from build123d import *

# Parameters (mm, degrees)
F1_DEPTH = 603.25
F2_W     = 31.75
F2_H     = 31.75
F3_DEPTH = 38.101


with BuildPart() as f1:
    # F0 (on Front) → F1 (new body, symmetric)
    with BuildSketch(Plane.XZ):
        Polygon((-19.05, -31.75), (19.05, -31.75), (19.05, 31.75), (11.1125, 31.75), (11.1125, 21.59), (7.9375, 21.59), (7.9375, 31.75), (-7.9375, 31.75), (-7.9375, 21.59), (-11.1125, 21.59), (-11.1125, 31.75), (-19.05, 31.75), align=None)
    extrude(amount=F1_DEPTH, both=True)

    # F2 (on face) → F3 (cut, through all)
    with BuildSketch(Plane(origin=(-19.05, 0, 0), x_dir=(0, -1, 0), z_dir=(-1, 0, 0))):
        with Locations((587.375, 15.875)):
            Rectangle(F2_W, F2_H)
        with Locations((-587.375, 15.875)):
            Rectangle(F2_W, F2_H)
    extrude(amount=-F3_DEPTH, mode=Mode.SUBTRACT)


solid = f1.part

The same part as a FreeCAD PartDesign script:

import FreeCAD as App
import Part
import Sketcher

V = App.Vector
Q = App.Units.Quantity

doc = App.newDocument("Part")
params = doc.addObject("Spreadsheet::Sheet", "Params")
for row, (alias, value) in enumerate([
    ("sketch1_width", "1.5 in"),
    ("sketch1_height", "2.5 in"),
    ("sketch1_height2", "0.4 in"),
    ("sketch1_width2", "0.3125 in"),
    ("sketch1_width3", "0.125 in"),
    ("pad1_length", "47.5 in"),
    ("sketch2_width", "1.25 in"),
], start=1):
    params.set(f"A{row}", alias)
    params.set(f"B{row}", "=" + value)
    params.setAlias(f"B{row}", alias)

body = doc.addObject("PartDesign::Body", "Body")

sketch1 = body.newObject("Sketcher::SketchObject", "Sketch")
sketch1.AttachmentSupport = (doc.getObject("XZ_Plane"), [""])
sketch1.MapMode = "FlatFace"
sketch1.addGeometry([
    Part.LineSegment(V(-19.05, -31.75, 0), V(19.05, -31.75, 0)),
    Part.LineSegment(V(19.05, -31.75, 0), V(19.05, 31.75, 0)),
    Part.LineSegment(V(19.05, 31.75, 0), V(11.1125, 31.75, 0)),
    Part.LineSegment(V(11.1125, 31.75, 0), V(11.1125, 21.59, 0)),
    Part.LineSegment(V(11.1125, 21.59, 0), V(7.9375, 21.59, 0)),
    Part.LineSegment(V(7.9375, 21.59, 0), V(7.9375, 31.75, 0)),
    Part.LineSegment(V(7.9375, 31.75, 0), V(-7.9375, 31.75, 0)),
    Part.LineSegment(V(-7.9375, 31.75, 0), V(-7.9375, 21.59, 0)),
    Part.LineSegment(V(-7.9375, 21.59, 0), V(-11.1125, 21.59, 0)),
    Part.LineSegment(V(-11.1125, 21.59, 0), V(-11.1125, 31.75, 0)),
    Part.LineSegment(V(-11.1125, 31.75, 0), V(-19.05, 31.75, 0)),
    Part.LineSegment(V(-19.05, 31.75, 0), V(-19.05, -31.75, 0)),
], False)
sketch1.addConstraint([
    Sketcher.Constraint("Coincident", 0, 2, 1, 1),
    Sketcher.Constraint("Coincident", 1, 2, 2, 1),
    Sketcher.Constraint("Coincident", 2, 2, 3, 1),
    Sketcher.Constraint("Coincident", 3, 2, 4, 1),
    Sketcher.Constraint("Coincident", 4, 2, 5, 1),
    Sketcher.Constraint("Coincident", 5, 2, 6, 1),
    Sketcher.Constraint("Coincident", 6, 2, 7, 1),
    Sketcher.Constraint("Coincident", 7, 2, 8, 1),
    Sketcher.Constraint("Coincident", 8, 2, 9, 1),
    Sketcher.Constraint("Coincident", 9, 2, 10, 1),
    Sketcher.Constraint("Coincident", 10, 2, 11, 1),
    Sketcher.Constraint("Coincident", 11, 2, 0, 1),
    Sketcher.Constraint("Horizontal", 0),
    Sketcher.Constraint("Vertical", 1),
    Sketcher.Constraint("Horizontal", 2),
    Sketcher.Constraint("Vertical", 3),
    Sketcher.Constraint("Horizontal", 4),
    Sketcher.Constraint("Vertical", 5),
    Sketcher.Constraint("Horizontal", 6),
    Sketcher.Constraint("Vertical", 7),
    Sketcher.Constraint("Horizontal", 8),
    Sketcher.Constraint("Vertical", 9),
    Sketcher.Constraint("Horizontal", 10),
    Sketcher.Constraint("Vertical", 11),
    Sketcher.Constraint("Symmetric", 0, 2, 10, 2, -1, 1),
    Sketcher.Constraint("Symmetric", 4, 2, 7, 2, -2),
    Sketcher.Constraint("Symmetric", 2, 2, 9, 2, -2),
    Sketcher.Constraint("Horizontal", 2, 2, 5, 2),
    Sketcher.Constraint("DistanceX", 0, 1, 0, 2, Q("1.5 in")),
    Sketcher.Constraint("DistanceY", 1, 1, 1, 2, Q("2.5 in")),
    Sketcher.Constraint("DistanceY", 3, 2, 3, 1, Q("0.4 in")),
    Sketcher.Constraint("DistanceX", 2, 2, 2, 1, Q("0.3125 in")),
    Sketcher.Constraint("DistanceX", 4, 2, 4, 1, Q("0.125 in")),
])
sketch1.setExpression("Constraints[28]", "Params.sketch1_width")
sketch1.setExpression("Constraints[29]", "Params.sketch1_height")
sketch1.setExpression("Constraints[30]", "Params.sketch1_height2")
sketch1.setExpression("Constraints[31]", "Params.sketch1_width2")
sketch1.setExpression("Constraints[32]", "Params.sketch1_width3")
pad1 = body.newObject("PartDesign::Pad", "Pad")
pad1.Profile = sketch1
pad1.setExpression("Length", "Params.pad1_length")
pad1.Midplane = True

sketch2 = body.newObject("Sketcher::SketchObject", "Sketch001")
sketch2.AttachmentSupport = (doc.getObject("YZ_Plane"), [""])
sketch2.MapMode = "FlatFace"
sketch2.AttachmentOffset = App.Placement(V(0, 0, -0.75 * 25.4), App.Rotation())
sketch2.addGeometry([
    Part.LineSegment(V(-571.5, 31.75, 0), V(-571.5, 0, 0)),
    Part.LineSegment(V(-571.5, 0, 0), V(-603.25, 0, 0)),
    Part.LineSegment(V(-603.25, 0, 0), V(-603.25, 31.75, 0)),
    Part.LineSegment(V(-603.25, 31.75, 0), V(-571.5, 31.75, 0)),
    Part.LineSegment(V(603.25, 31.75, 0), V(603.25, 0, 0)),
    Part.LineSegment(V(603.25, 0, 0), V(571.5, 0, 0)),
    Part.LineSegment(V(571.5, 0, 0), V(571.5, 31.75, 0)),
    Part.LineSegment(V(571.5, 31.75, 0), V(603.25, 31.75, 0)),
], False)
sketch2.addConstraint([
    Sketcher.Constraint("Coincident", 0, 2, 1, 1),
    Sketcher.Constraint("Coincident", 1, 2, 2, 1),
    Sketcher.Constraint("Coincident", 2, 2, 3, 1),
    Sketcher.Constraint("Coincident", 3, 2, 0, 1),
    Sketcher.Constraint("Coincident", 4, 2, 5, 1),
    Sketcher.Constraint("Coincident", 5, 2, 6, 1),
    Sketcher.Constraint("Coincident", 6, 2, 7, 1),
    Sketcher.Constraint("Coincident", 7, 2, 4, 1),
    Sketcher.Constraint("Vertical", 0),
    Sketcher.Constraint("Horizontal", 1),
    Sketcher.Constraint("Vertical", 2),
    Sketcher.Constraint("Horizontal", 3),
    Sketcher.Constraint("Vertical", 4),
    Sketcher.Constraint("Horizontal", 5),
    Sketcher.Constraint("Vertical", 6),
    Sketcher.Constraint("Horizontal", 7),
    Sketcher.Constraint("Symmetric", 1, 2, 4, 2, -1, 1),
    Sketcher.Constraint("Symmetric", 0, 2, 5, 2, -2),
    Sketcher.Constraint("Horizontal", 3, 2, 6, 2),
    Sketcher.Constraint("Equal", 7, 0),
    Sketcher.Constraint("DistanceX", 0, 2, 5, 2, Q("45 in")),
    Sketcher.Constraint("DistanceX", 1, 2, 1, 1, Q("1.25 in")),
])
sketch2.setExpression("Constraints[21]", "Params.sketch2_width")
pocket1 = body.newObject("PartDesign::Pocket", "Pocket")
pocket1.Profile = sketch2
pocket1.Type = "ThroughAll"
pocket1.Reversed = True

doc.recompute()
